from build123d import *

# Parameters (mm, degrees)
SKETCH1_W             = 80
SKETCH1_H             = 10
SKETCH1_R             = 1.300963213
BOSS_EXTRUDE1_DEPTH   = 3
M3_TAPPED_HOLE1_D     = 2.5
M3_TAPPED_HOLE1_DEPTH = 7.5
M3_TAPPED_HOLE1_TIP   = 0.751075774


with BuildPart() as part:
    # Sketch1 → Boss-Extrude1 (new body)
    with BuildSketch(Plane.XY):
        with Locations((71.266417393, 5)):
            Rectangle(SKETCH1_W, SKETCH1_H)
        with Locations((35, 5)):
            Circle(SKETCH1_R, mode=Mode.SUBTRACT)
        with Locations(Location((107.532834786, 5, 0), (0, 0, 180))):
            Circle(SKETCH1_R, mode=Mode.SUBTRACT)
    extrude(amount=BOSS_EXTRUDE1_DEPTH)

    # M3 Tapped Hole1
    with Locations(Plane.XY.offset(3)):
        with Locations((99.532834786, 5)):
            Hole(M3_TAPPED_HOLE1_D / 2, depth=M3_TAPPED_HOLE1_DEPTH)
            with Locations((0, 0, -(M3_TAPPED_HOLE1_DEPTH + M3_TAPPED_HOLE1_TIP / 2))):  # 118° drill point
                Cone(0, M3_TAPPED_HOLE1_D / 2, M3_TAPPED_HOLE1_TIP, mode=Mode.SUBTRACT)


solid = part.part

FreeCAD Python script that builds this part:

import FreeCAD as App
import Part
import Sketcher
from FreeCAD import Vector


def add_polygon(sketch, points):
    """Adds a closed chain of lines whose ends are joined by coincident constraints."""
    first, n = sketch.GeometryCount, len(points)
    for a, b in zip(points, points[1:] + points[:1]):
        sketch.addGeometry(Part.LineSegment(App.Vector(*a, 0), App.Vector(*b, 0)), False)
    for i in range(n):
        sketch.addConstraint(Sketcher.Constraint("Coincident", first + i, 2, first + (i + 1) % n, 1))

doc = App.newDocument("Part")
params = doc.addObject("Spreadsheet::Sheet", "Params")
for row, (alias, value) in enumerate([
    ("sketch1_width", "80 mm"),
    ("sketch1_height", "10 mm"),
    ("pad1_length", "3 mm"),
    ("sketch2_diameter", "2.5 mm"),
    ("hole_diameter", "2.5 mm"),
    ("hole_depth", "7.5 mm"),
], start=1):
    params.set(f"A{row}", alias)
    params.set(f"B{row}", "=" + value)
    params.setAlias(f"B{row}", alias)

body = doc.addObject("PartDesign::Body", "Body")

# Sketch on XY plane
sketch1 = body.newObject("Sketcher::SketchObject", "Sketch")
sketch1.AttachmentSupport = (doc.getObject("XY_Plane"), [""])
sketch1.MapMode = "FlatFace"
add_polygon(sketch1, [(31.3, 10), (31.3, 0), (111.3, 0), (111.3, 10)])  # lines 0-3
sketch1.addGeometry(Part.Circle(Vector(35, 5, 0), Vector(0, 0, 1), 1.3), False)  # 4
sketch1.addGeometry(Part.Circle(Vector(107.5, 5, 0), Vector(0, 0, 1), 1.3), False)  # 5
sketch1.addConstraint([
    Sketcher.Constraint("Vertical", 0),
    Sketcher.Constraint("Horizontal", 1),
    Sketcher.Constraint("Vertical", 2),
    Sketcher.Constraint("Horizontal", 3),
    Sketcher.Constraint("Equal", 4, 5),
    Sketcher.Constraint("PointOnObject", 0, 2, -1),
    Sketcher.Constraint("Horizontal", 4, 3, 5, 3),
    Sketcher.Constraint("DistanceX", 1, 1, 1, 2, 80.0),
    Sketcher.Constraint("DistanceY", 0, 2, 0, 1, 10.0),
    Sketcher.Constraint("DistanceX", -1, 1, 4, 3, 35.0),
    Sketcher.Constraint("DistanceY", -1, 1, 4, 3, 5.0),
    Sketcher.Constraint("Diameter", 4, 2.601926),
    Sketcher.Constraint("DistanceX", -1, 1, 5, 3, 107.532835),
    Sketcher.Constraint("DistanceX", -1, 1, 0, 2, 31.266417),
])
sketch1.setExpression("Constraints[11]", "Params.sketch1_width")
sketch1.setExpression("Constraints[12]", "Params.sketch1_height")
pad1 = body.newObject("PartDesign::Pad", "Pad")
pad1.Profile = sketch1
pad1.setExpression("Length", "Params.pad1_length")

# Sketch on XY plane
sketch2 = body.newObject("Sketcher::SketchObject", "Sketch001")
sketch2.AttachmentSupport = (doc.getObject("XY_Plane"), [""])
sketch2.MapMode = "FlatFace"
sketch2.AttachmentOffset = App.Placement(Vector(0, 0, 3), App.Rotation())
sketch2.addGeometry(Part.Circle(Vector(99.5, 5, 0), Vector(0, 0, 1), 1.2), False)
sketch2.addConstraint([
    Sketcher.Constraint("Diameter", 0, 2.5),
    Sketcher.Constraint("DistanceY", -1, 1, 0, 3, 5.0),
    Sketcher.Constraint("DistanceX", -1, 1, 0, 3, 99.532835),
])
sketch2.setExpression("Constraints[0]", "Params.sketch2_diameter")
doc.recompute()
hole = body.newObject("PartDesign::Hole", "Hole")
hole.Profile = sketch2
hole.ThreadType = "None"
hole.setExpression("Diameter", "Params.hole_diameter")
hole.DepthType = "Dimension"
hole.setExpression("Depth", "Params.hole_depth")
hole.DrillPoint = "Angled"
hole.DrillPointAngle = 118

doc.recompute()
